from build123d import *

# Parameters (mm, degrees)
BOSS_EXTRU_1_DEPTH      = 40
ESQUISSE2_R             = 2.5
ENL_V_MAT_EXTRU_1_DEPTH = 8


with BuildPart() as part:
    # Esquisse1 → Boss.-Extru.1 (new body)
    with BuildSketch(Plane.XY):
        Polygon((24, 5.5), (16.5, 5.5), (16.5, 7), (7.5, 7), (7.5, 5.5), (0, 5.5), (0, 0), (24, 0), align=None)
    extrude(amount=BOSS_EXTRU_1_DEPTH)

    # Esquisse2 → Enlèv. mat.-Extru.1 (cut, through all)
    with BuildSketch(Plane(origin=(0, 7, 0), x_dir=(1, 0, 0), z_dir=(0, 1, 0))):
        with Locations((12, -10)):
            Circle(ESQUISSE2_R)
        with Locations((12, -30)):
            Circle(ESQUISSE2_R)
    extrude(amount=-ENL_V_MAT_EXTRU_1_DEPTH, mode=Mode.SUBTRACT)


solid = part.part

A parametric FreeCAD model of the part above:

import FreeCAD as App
import Part
import Sketcher

doc = App.newDocument("Part")
params = doc.addObject("Spreadsheet::Sheet", "Params")
for row, (alias, value) in enumerate([
    ("sketch1_width", "9 mm"),
    ("sketch1_width2", "24 mm"),
    ("sketch1_height", "1.5 mm"),
    ("sketch1_height2", "5.5 mm"),
    ("pad1_length", "40 mm"),
    ("sketch2_diameter", "5 mm"),
], start=1):
    params.set(f"A{row}", alias)
    params.set(f"B{row}", "=" + value)
    params.setAlias(f"B{row}", alias)

body = doc.addObject("PartDesign::Body", "Body")

# Sketch on XY plane
sketch1 = doc.addObject("Sketcher::SketchObject", "Sketch")
body.addObject(sketch1)
sketch1.AttachmentSupport = (doc.XY_Plane, [""])
sketch1.MapMode = "FlatFace"
sketch1.addGeometry([
    Part.LineSegment(App.Vector(24, 5.5, 0), App.Vector(16.5, 5.5, 0)),  # 0
    Part.LineSegment(App.Vector(16.5, 5.5, 0), App.Vector(16.5, 7, 0)),  # 1
    Part.LineSegment(App.Vector(16.5, 7, 0), App.Vector(7.5, 7, 0)),  # 2
    Part.LineSegment(App.Vector(7.5, 7, 0), App.Vector(7.5, 5.5, 0)),  # 3
    Part.LineSegment(App.Vector(7.5, 5.5, 0), App.Vector(0, 5.5, 0)),  # 4
    Part.LineSegment(App.Vector(0, 5.5, 0), App.Vector(0, 0, 0)),  # 5
    Part.LineSegment(App.Vector(0, 0, 0), App.Vector(24, 0, 0)),  # 6
    Part.LineSegment(App.Vector(24, 0, 0), App.Vector(24, 5.5, 0)),  # 7
], False)
sketch1.addConstraint([
    Sketcher.Constraint("Coincident", 0, 2, 1, 1),
    Sketcher.Constraint("Coincident", 1, 2, 2, 1),
    Sketcher.Constraint("Coincident", 2, 2, 3, 1),
    Sketcher.Constraint("Coincident", 3, 2, 4, 1),
    Sketcher.Constraint("Coincident", 4, 2, 5, 1),
    Sketcher.Constraint("Coincident", 5, 2, 6, 1),
    Sketcher.Constraint("Coincident", 6, 2, 7, 1),
    Sketcher.Constraint("Coincident", 7, 2, 0, 1),
    Sketcher.Constraint("Horizontal", 0),
    Sketcher.Constraint("Vertical", 1),
    Sketcher.Constraint("Horizontal", 2),
    Sketcher.Constraint("Vertical", 3),
    Sketcher.Constraint("Horizontal", 4),
    Sketcher.Constraint("Vertical", 5),
    Sketcher.Constraint("Horizontal", 6),
    Sketcher.Constraint("Vertical", 7),
    Sketcher.Constraint("Coincident", 5, 2, -1, 1),
    Sketcher.Constraint("Horizontal", 0, 2, 3, 2),
    Sketcher.Constraint("Equal", 0, 4),
    Sketcher.Constraint("DistanceX", 2, 2, 2, 1, 9.0),
    Sketcher.Constraint("DistanceX", 6, 1, 6, 2, 24.0),
    Sketcher.Constraint("DistanceY", 1, 1, 1, 2, 1.5),
    Sketcher.Constraint("DistanceY", 5, 2, 5, 1, 5.5),
])
sketch1.setExpression("Constraints[19]", "Params.sketch1_width")
sketch1.setExpression("Constraints[20]", "Params.sketch1_width2")
sketch1.setExpression("Constraints[21]", "Params.sketch1_height")
sketch1.setExpression("Constraints[22]", "Params.sketch1_height2")
pad1 = doc.addObject("PartDesign::Pad", "Pad")
body.addObject(pad1)
pad1.Profile = sketch1
pad1.setExpression("Length", "Params.pad1_length")

# Sketch on XZ plane
sketch2 = doc.addObject("Sketcher::SketchObject", "Sketch001")
body.addObject(sketch2)
sketch2.AttachmentSupport = (doc.XZ_Plane, [""])
sketch2.MapMode = "FlatFace"
sketch2.AttachmentOffset = App.Placement(App.Vector(0, 0, -7), App.Rotation())
sketch2.addGeometry([
    Part.Circle(App.Vector(12, 10, 0), App.Vector(0, 0, 1), 2.5),
    Part.Circle(App.Vector(12, 30, 0), App.Vector(0, 0, 1), 2.5),
], False)
sketch2.addConstraint([
    Sketcher.Constraint("Equal", 0, 1),
    Sketcher.Constraint("Vertical", 0, 3, 1, 3),
    Sketcher.Constraint("Diameter", 0, 5.0),
    Sketcher.Constraint("DistanceX", -1, 1, 0, 3, 12.0),
    Sketcher.Constraint("DistanceY", -1, 1, 0, 3, 10.0),
    Sketcher.Constraint("DistanceY", -1, 1, 1, 3, 30.0),
])
sketch2.setExpression("Constraints[2]", "Params.sketch2_diameter")
pocket1 = doc.addObject("PartDesign::Pocket", "Pocket")
body.addObject(pocket1)
pocket1.Profile = sketch2
pocket1.Type = "ThroughAll"
pocket1.Reversed = True

doc.recompute()
